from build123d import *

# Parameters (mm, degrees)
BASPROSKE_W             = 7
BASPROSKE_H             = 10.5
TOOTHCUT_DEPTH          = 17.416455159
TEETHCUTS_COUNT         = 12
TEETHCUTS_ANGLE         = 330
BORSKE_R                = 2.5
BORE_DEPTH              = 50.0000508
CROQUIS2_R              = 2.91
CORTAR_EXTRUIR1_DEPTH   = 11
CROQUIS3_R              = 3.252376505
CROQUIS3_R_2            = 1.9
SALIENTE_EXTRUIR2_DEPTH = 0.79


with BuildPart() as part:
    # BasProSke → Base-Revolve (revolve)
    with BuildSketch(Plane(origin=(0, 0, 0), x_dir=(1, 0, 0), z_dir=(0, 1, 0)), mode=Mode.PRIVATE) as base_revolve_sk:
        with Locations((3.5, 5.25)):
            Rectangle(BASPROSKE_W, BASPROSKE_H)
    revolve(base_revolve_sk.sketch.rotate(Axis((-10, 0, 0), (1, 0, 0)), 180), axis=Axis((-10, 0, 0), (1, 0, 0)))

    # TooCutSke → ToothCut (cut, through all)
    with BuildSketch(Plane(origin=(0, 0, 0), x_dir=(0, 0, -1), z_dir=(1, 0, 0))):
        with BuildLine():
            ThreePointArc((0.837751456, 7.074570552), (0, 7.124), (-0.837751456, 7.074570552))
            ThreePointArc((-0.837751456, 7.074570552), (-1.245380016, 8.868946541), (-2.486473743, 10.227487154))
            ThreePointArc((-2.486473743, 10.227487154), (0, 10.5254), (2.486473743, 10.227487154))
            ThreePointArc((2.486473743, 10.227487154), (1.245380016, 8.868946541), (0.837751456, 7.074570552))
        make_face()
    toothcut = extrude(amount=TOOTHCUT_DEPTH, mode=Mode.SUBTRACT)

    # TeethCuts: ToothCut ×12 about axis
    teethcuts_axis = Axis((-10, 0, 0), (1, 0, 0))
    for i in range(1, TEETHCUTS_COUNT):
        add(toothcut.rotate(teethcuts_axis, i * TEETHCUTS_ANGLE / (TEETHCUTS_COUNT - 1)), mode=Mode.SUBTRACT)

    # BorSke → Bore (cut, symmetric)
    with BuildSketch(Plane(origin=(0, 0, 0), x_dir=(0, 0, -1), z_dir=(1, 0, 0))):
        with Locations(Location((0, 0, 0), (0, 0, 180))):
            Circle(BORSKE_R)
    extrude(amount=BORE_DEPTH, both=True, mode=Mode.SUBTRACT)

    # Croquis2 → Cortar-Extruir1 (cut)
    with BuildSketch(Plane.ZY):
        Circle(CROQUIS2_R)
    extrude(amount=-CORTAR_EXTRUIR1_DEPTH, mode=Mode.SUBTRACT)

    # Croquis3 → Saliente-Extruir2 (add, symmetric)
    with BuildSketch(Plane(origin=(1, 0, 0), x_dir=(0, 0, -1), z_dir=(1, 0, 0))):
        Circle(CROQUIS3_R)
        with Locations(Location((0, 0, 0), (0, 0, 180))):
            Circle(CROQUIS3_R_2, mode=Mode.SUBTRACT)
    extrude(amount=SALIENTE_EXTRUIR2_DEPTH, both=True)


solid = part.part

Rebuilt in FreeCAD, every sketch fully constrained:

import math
import FreeCAD as App
import Part
import Sketcher

V = App.Vector
Q = App.Units.Quantity


def add_polygon(sketch, points):
    """Adds a closed chain of lines whose ends are joined by coincident constraints."""
    first, n = sketch.GeometryCount, len(points)
    for a, b in zip(points, points[1:] + points[:1]):
        sketch.addGeometry(Part.LineSegment(App.Vector(*a, 0), App.Vector(*b, 0)), False)
    for i in range(n):
        sketch.addConstraint(Sketcher.Constraint("Coincident", first + i, 2, first + (i + 1) % n, 1))

doc = App.newDocument("Part")
body = doc.addObject("PartDesign::Body", "Body")

# Sketch on XZ plane
sketch1 = body.newObject("Sketcher::SketchObject", "Sketch")
sketch1.AttachmentSupport = (doc.getObject("XZ_Plane"), [""])
sketch1.MapMode = "FlatFace"
add_polygon(sketch1, [(0, -10), (0, 0), (7, 0), (7, -10)])  # lines 0-3
sketch1.addConstraint([
    Sketcher.Constraint("Vertical", 0),
    Sketcher.Constraint("Horizontal", 1),
    Sketcher.Constraint("Vertical", 2),
    Sketcher.Constraint("Horizontal", 3),
    Sketcher.Constraint("Coincident", 0, 2, -1, 1),
    Sketcher.Constraint("DistanceX", 1, 1, 1, 2, Q("7 mm")),
    Sketcher.Constraint("DistanceY", 0, 1, 0, 2, Q("10.5 mm")),
])
revolution = body.newObject("PartDesign::Revolution", "Revolution")
revolution.Profile = sketch1
revolution.ReferenceAxis = (sketch1, ["H_Axis"])
revolution.Angle = 360

# Sketch on YZ plane
sketch2 = body.newObject("Sketcher::SketchObject", "Sketch001")
sketch2.AttachmentSupport = (doc.getObject("YZ_Plane"), [""])
sketch2.MapMode = "FlatFace"
sketch2.addGeometry([
    Part.ArcOfCircle(Part.Circle(V(0, 0, 0), V(0, 0, 1), 7.1), math.radians(-6.75), math.radians(6.75)),
    Part.ArcOfCircle(Part.Circle(V(7.2, -4.4, 0), V(0, 0, 1), 3.6), math.radians(33), math.radians(92)),
    Part.ArcOfCircle(Part.Circle(V(0, 0, 0), V(0, 0, 1), 10.5), math.radians(-14), math.radians(14)),
    Part.ArcOfCircle(Part.Circle(V(7.2, 4.4, 0), V(0, 0, 1), 3.6), math.radians(-92), math.radians(-33)),
], False)
sketch2.addConstraint([
    Sketcher.Constraint("Coincident", 0, 1, 1, 2),
    Sketcher.Constraint("Coincident", 1, 1, 2, 1),
    Sketcher.Constraint("Coincident", 2, 2, 3, 2),
    Sketcher.Constraint("Coincident", 3, 1, 0, 2),
    Sketcher.Constraint("Coincident", 0, 3, -1, 1),
    Sketcher.Constraint("Coincident", 2, 3, -1, 1),
    Sketcher.Constraint("Equal", 1, 3),
    Sketcher.Constraint("Symmetric", 1, 3, 3, 3, -1),
    Sketcher.Constraint("Radius", 1, Q("3.6 mm")),
    Sketcher.Constraint("Radius", 0, Q("7.124 mm")),
    Sketcher.Constraint("Radius", 2, Q("10.5254 mm")),
    Sketcher.Constraint("DistanceX", -1, 1, 1, 3, Q("7.200749 mm")),
    Sketcher.Constraint("DistanceY", 1, 3, -1, 1, Q("4.43554 mm")),
])
pocket1 = body.newObject("PartDesign::Pocket", "Pocket")
pocket1.Profile = sketch2
pocket1.Type = "ThroughAll"
pocket1.Reversed = True
doc.recompute()

polarpattern = body.newObject("PartDesign::PolarPattern", "PolarPattern")
polarpattern.Originals = [pocket1]
polarpattern.Axis = (doc.getObject("X_Axis"), [""])
polarpattern.Angle = 360
polarpattern.Occurrences = 12
body.Tip = polarpattern

# Sketch on YZ plane
sketch3 = body.newObject("Sketcher::SketchObject", "Sketch002")
sketch3.AttachmentSupport = (doc.getObject("YZ_Plane"), [""])
sketch3.MapMode = "FlatFace"
sketch3.addGeometry(Part.Circle(V(0, 0, 0), V(0, 0, 1), 2.5), False)
sketch3.addConstraint([
    Sketcher.Constraint("Coincident", 0, 3, -1, 1),
    Sketcher.Constraint("Diameter", 0, Q("5 mm")),
])
pocket2 = body.newObject("PartDesign::Pocket", "Pocket001")
pocket2.Profile = sketch3
pocket2.Length = 100.000102
pocket2.Midplane = True

# Sketch on YZ plane
sketch4 = body.newObject("Sketcher::SketchObject", "Sketch003")
sketch4.AttachmentSupport = (doc.getObject("YZ_Plane"), [""])
sketch4.MapMode = "FlatFace"
sketch4.addGeometry(Part.Circle(V(0, 0, 0), V(0, 0, 1), 2.9), False)
sketch4.addConstraint([
    Sketcher.Constraint("Coincident", 0, 3, -1, 1),
    Sketcher.Constraint("Diameter", 0, Q("5.82 mm")),
])
pocket3 = body.newObject("PartDesign::Pocket", "Pocket002")
pocket3.Profile = sketch4
pocket3.Length = 11
pocket3.Reversed = True

# Sketch on YZ plane
sketch5 = body.newObject("Sketcher::SketchObject", "Sketch004")
sketch5.AttachmentSupport = (doc.getObject("YZ_Plane"), [""])
sketch5.MapMode = "FlatFace"
sketch5.AttachmentOffset = App.Placement(V(0, 0, 1), App.Rotation())
sketch5.addGeometry([
    Part.Circle(V(0, 0, 0), V(0, 0, 1), 3.3),
    Part.Circle(V(0, 0, 0), V(0, 0, 1), 1.9),
], False)
sketch5.addConstraint([
    Sketcher.Constraint("Coincident", 0, 3, -1, 1),
    Sketcher.Constraint("Coincident", 1, 3, -1, 1),
    Sketcher.Constraint("Diameter", 1, Q("3.8 mm")),
    Sketcher.Constraint("Diameter", 0, Q("6.504753 mm")),
])
pad1 = body.newObject("PartDesign::Pad", "Pad")
pad1.Profile = sketch5
pad1.Length = 1.58
pad1.Midplane = True

doc.recompute()
